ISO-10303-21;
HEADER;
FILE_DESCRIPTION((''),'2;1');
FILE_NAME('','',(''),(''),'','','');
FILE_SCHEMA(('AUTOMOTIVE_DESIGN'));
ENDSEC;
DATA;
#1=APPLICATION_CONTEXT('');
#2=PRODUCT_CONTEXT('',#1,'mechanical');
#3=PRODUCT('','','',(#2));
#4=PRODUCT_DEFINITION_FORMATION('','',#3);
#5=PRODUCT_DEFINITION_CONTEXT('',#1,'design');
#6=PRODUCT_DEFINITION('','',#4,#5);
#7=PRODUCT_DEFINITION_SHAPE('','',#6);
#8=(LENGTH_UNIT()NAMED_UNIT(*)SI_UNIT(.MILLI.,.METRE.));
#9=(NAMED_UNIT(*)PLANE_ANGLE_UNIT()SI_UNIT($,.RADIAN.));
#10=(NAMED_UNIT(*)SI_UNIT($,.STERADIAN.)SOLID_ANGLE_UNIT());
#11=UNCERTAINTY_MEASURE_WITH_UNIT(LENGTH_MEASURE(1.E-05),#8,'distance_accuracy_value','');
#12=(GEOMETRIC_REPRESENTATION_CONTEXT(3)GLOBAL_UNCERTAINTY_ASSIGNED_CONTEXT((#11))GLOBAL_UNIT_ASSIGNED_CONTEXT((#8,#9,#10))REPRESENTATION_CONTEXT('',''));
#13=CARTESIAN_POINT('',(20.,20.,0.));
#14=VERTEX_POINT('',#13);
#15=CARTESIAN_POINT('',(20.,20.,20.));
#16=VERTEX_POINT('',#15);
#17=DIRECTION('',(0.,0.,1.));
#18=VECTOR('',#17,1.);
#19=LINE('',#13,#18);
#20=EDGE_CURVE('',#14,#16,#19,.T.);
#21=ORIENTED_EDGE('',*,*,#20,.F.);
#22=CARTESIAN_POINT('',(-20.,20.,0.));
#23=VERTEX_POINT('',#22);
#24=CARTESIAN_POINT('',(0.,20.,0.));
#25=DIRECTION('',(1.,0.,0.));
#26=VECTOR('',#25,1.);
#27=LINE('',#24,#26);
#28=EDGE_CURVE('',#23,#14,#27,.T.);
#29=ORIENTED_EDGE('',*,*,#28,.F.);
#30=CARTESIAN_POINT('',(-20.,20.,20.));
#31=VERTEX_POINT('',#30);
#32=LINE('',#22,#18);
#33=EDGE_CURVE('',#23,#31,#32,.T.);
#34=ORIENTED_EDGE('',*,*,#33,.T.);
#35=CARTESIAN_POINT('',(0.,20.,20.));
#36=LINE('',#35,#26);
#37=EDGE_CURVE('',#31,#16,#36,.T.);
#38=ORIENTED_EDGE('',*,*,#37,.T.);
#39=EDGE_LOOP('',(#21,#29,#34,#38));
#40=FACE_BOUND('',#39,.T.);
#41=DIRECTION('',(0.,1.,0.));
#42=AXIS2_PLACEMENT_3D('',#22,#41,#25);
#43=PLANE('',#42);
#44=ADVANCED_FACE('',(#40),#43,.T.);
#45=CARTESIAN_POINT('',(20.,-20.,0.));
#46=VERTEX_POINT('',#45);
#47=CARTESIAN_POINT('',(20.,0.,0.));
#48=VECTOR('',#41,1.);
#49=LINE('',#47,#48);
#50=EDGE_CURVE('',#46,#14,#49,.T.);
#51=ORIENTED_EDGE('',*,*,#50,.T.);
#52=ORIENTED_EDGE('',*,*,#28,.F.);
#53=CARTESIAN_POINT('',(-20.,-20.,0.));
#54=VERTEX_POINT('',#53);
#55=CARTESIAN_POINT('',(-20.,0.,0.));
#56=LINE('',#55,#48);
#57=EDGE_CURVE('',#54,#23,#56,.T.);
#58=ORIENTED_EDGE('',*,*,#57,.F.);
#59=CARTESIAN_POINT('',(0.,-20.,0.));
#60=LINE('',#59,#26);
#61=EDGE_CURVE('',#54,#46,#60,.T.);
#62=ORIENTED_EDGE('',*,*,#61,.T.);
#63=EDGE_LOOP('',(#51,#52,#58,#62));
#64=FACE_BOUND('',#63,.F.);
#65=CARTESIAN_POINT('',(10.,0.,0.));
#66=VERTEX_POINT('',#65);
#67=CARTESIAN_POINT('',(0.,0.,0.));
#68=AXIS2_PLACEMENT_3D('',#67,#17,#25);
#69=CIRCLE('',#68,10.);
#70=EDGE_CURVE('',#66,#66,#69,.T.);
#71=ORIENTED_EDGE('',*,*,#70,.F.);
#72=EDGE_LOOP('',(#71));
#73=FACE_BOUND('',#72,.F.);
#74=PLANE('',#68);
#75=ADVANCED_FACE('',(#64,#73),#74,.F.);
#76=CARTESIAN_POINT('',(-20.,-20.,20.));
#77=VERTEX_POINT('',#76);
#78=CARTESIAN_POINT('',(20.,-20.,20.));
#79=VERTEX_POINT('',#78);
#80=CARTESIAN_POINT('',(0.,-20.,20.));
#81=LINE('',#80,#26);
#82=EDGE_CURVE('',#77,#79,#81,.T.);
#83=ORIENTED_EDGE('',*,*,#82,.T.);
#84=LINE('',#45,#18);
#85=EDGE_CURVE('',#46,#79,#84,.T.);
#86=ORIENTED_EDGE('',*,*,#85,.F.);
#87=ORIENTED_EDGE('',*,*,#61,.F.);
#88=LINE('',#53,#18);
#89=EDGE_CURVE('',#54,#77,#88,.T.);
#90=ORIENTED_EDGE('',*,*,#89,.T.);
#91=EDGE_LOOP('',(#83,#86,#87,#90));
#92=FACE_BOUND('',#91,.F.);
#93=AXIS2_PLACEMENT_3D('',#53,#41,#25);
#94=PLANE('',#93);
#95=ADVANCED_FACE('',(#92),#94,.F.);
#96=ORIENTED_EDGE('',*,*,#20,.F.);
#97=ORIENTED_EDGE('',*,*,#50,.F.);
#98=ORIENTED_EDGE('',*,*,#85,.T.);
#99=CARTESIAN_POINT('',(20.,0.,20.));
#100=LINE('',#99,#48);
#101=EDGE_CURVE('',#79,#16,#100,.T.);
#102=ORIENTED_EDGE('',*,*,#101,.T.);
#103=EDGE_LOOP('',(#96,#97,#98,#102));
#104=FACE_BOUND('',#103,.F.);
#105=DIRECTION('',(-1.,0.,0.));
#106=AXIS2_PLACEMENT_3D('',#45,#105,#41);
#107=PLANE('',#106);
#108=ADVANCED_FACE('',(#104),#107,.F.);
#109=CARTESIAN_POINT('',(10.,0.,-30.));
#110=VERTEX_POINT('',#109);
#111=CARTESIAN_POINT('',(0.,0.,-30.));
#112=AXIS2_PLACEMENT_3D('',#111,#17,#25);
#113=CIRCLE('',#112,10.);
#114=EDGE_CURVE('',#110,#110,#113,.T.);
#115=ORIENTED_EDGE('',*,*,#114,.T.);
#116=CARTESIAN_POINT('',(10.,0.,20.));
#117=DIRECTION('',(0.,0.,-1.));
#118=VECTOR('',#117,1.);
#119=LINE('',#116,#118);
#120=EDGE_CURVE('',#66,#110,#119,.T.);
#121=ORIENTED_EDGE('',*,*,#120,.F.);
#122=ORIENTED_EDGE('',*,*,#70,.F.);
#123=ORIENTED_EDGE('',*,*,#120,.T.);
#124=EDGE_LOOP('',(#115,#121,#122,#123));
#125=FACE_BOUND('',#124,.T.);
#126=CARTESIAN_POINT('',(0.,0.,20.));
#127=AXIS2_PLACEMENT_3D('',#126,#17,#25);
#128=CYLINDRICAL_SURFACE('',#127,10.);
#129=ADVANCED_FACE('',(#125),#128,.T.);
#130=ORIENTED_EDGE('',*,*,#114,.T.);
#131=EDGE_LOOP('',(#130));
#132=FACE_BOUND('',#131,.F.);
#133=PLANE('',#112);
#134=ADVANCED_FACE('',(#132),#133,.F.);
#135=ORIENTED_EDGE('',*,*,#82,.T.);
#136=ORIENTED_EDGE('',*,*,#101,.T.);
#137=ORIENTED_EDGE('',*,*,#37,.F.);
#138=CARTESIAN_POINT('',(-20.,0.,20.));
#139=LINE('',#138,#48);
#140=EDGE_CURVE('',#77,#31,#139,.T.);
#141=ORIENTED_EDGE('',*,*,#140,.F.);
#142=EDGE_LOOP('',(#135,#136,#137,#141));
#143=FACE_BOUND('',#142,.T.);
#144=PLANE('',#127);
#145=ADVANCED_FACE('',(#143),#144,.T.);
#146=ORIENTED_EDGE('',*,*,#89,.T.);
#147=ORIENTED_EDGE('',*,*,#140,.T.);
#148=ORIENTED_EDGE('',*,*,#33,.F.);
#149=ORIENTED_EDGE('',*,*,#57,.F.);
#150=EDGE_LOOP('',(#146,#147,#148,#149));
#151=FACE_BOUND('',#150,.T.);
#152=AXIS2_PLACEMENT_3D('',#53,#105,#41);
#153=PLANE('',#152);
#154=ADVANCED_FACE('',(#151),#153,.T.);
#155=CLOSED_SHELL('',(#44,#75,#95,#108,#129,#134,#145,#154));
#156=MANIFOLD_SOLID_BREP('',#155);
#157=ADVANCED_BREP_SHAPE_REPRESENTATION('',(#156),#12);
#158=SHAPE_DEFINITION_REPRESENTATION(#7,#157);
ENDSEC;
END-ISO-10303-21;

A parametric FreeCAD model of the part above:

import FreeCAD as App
import Part
import Sketcher
from FreeCAD import Vector
Q = App.Units.Quantity

doc = App.newDocument("Part")
body = doc.addObject("PartDesign::Body", "Body")

sketch1 = doc.addObject("Sketcher::SketchObject", "Sketch")
body.addObject(sketch1)
sketch1.AttachmentSupport = (doc.XY_Plane, [""])
sketch1.MapMode = "FlatFace"
sketch1.addGeometry([
    Part.LineSegment(Vector(-20, 20, 0), Vector(-20, -20, 0)),
    Part.LineSegment(Vector(-20, -20, 0), Vector(20, -20, 0)),
    Part.LineSegment(Vector(20, -20, 0), Vector(20, 20, 0)),
    Part.LineSegment(Vector(20, 20, 0), Vector(-20, 20, 0)),
], False)
sketch1.addConstraint([
    Sketcher.Constraint("Coincident", 0, 2, 1, 1),
    Sketcher.Constraint("Coincident", 1, 2, 2, 1),
    Sketcher.Constraint("Coincident", 2, 2, 3, 1),
    Sketcher.Constraint("Coincident", 3, 2, 0, 1),
    Sketcher.Constraint("Vertical", 0),
    Sketcher.Constraint("Horizontal", 1),
    Sketcher.Constraint("Vertical", 2),
    Sketcher.Constraint("Horizontal", 3),
    Sketcher.Constraint("Symmetric", 0, 2, 2, 2, -1, 1),
    Sketcher.Constraint("Equal", 3, 0),
    Sketcher.Constraint("DistanceX", 1, 1, 1, 2, Q("40 mm")),
])
pad1 = doc.addObject("PartDesign::Pad", "Pad")
body.addObject(pad1)
pad1.Profile = sketch1
pad1.Length = 20

sketch2 = doc.addObject("Sketcher::SketchObject", "Sketch001")
body.addObject(sketch2)
sketch2.AttachmentSupport = (doc.XY_Plane, [""])
sketch2.MapMode = "FlatFace"
sketch2.AttachmentOffset = App.Placement(Vector(0, 0, 20), App.Rotation())
sketch2.addGeometry(Part.Circle(Vector(0, 0, 0), Vector(0, 0, 1), 10), False)
sketch2.addConstraint([
    Sketcher.Constraint("Coincident", 0, 3, -1, 1),
    Sketcher.Constraint("Diameter", 0, Q("20 mm")),
])
pad2 = doc.addObject("PartDesign::Pad", "Pad001")
body.addObject(pad2)
pad2.Profile = sketch2
pad2.Length = 50
pad2.Reversed = True

doc.recompute()
